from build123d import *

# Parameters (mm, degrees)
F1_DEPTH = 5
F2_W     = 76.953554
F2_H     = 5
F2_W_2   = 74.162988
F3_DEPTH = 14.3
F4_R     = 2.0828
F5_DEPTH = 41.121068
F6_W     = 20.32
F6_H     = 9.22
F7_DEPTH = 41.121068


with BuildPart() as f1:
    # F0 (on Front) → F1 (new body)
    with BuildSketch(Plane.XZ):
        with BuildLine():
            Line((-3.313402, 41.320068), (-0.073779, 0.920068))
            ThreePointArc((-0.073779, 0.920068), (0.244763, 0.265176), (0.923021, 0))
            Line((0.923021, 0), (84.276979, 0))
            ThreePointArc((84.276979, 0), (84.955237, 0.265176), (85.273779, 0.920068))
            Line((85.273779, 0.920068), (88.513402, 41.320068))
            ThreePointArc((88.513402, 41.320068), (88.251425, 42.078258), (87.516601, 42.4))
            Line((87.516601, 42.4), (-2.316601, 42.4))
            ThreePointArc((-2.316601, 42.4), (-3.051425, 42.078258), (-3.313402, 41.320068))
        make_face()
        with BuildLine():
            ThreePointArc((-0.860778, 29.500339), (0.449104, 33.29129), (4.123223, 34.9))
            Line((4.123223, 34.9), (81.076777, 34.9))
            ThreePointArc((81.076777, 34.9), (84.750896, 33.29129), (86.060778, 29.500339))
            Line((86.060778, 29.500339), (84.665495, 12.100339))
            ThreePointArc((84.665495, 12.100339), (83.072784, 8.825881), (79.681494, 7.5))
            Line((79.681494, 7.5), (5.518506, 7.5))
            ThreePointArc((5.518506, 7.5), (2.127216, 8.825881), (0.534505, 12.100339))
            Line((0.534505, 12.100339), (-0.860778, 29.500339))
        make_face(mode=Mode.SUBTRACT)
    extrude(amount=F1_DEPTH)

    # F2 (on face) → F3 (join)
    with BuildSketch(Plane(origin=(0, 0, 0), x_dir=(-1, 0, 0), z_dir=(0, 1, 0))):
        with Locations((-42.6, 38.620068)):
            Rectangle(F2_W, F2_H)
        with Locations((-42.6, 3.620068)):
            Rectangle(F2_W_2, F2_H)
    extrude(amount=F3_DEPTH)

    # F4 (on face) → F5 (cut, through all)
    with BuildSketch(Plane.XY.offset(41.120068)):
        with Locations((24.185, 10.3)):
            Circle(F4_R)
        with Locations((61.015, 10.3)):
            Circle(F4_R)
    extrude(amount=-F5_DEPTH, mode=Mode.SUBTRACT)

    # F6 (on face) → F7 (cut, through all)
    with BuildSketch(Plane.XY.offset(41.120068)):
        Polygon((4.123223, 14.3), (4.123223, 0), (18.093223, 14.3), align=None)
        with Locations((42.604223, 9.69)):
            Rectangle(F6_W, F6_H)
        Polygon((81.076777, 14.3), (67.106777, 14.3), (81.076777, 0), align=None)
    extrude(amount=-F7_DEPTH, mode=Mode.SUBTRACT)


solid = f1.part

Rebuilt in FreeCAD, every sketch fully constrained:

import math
import FreeCAD as App
import Part
import Sketcher
from FreeCAD import Vector
Q = App.Units.Quantity


def add_polygon(sketch, points):
    """Adds a closed chain of lines whose ends are joined by coincident constraints."""
    first, n = sketch.GeometryCount, len(points)
    for a, b in zip(points, points[1:] + points[:1]):
        sketch.addGeometry(Part.LineSegment(App.Vector(*a, 0), App.Vector(*b, 0)), False)
    for i in range(n):
        sketch.addConstraint(Sketcher.Constraint("Coincident", first + i, 2, first + (i + 1) % n, 1))

doc = App.newDocument("Part")
body = doc.addObject("PartDesign::Body", "Body")

# Sketch on XZ plane
sketch1 = body.newObject("Sketcher::SketchObject", "Sketch")
sketch1.AttachmentSupport = (doc.getObject("XZ_Plane"), [""])
sketch1.MapMode = "FlatFace"
sketch1.addGeometry([
    Part.LineSegment(Vector(-3.313402, 41.320068, 0), Vector(-0.073779, 0.920068, 0)),  # 0
    Part.ArcOfCircle(Part.Circle(Vector(0.92302, 0.999999, 0), Vector(0, 0, 1), 0.999999), math.radians(-175.415391), math.radians(-89.99997)),  # 1
    Part.LineSegment(Vector(0.923021, 0, 0), Vector(84.276979, 0, 0)),  # 2
    Part.ArcOfCircle(Part.Circle(Vector(84.27698, 0.999999, 0), Vector(0, 0, 1), 0.999999), math.radians(-90.00003), math.radians(-4.584609)),  # 3
    Part.LineSegment(Vector(85.273779, 0.920068, 0), Vector(88.513402, 41.320068, 0)),  # 4
    Part.ArcOfCircle(Part.Circle(Vector(87.516601, 41.399999, 0), Vector(0, 0, 1), 1.000001), math.radians(-4.584606), math.radians(89.999988)),  # 5
    Part.LineSegment(Vector(87.516601, 42.4, 0), Vector(-2.316601, 42.4, 0)),  # 6
    Part.ArcOfCircle(Part.Circle(Vector(-2.316601, 41.399999, 0), Vector(0, 0, 1), 1.000001), math.radians(90.000012), math.radians(184.584606)),  # 7
    Part.LineSegment(Vector(0.534505, 12.100339, 0), Vector(-0.860778, 29.500339, 0)),  # 8
    Part.ArcOfCircle(Part.Circle(Vector(4.123223, 29.9, 0), Vector(0, 0, 1), 5), math.radians(90), math.radians(184.584674)),  # 9
    Part.LineSegment(Vector(4.123223, 34.9, 0), Vector(81.076777, 34.9, 0)),  # 10
    Part.ArcOfCircle(Part.Circle(Vector(81.076777, 29.9, 0), Vector(0, 0, 1), 5), math.radians(-4.584674), math.radians(90)),  # 11
    Part.LineSegment(Vector(86.060778, 29.500339, 0), Vector(84.665495, 12.100339, 0)),  # 12
    Part.ArcOfCircle(Part.Circle(Vector(79.681494, 12.5, 0), Vector(0, 0, 1), 5), math.radians(-89.999999), math.radians(-4.584663)),  # 13
    Part.LineSegment(Vector(79.681494, 7.5, 0), Vector(5.518506, 7.5, 0)),  # 14
    Part.ArcOfCircle(Part.Circle(Vector(5.518506, 12.5, 0), Vector(0, 0, 1), 5), math.radians(-175.415337), math.radians(-90.000001)),  # 15
], False)
sketch1.addConstraint([
    Sketcher.Constraint("Coincident", 0, 2, 1, 1),
    Sketcher.Constraint("Coincident", 1, 2, 2, 1),
    Sketcher.Constraint("Coincident", 2, 2, 3, 1),
    Sketcher.Constraint("Coincident", 3, 2, 4, 1),
    Sketcher.Constraint("Coincident", 4, 2, 5, 1),
    Sketcher.Constraint("Coincident", 5, 2, 6, 1),
    Sketcher.Constraint("Coincident", 6, 2, 7, 1),
    Sketcher.Constraint("Coincident", 7, 2, 0, 1),
    Sketcher.Constraint("Coincident", 8, 2, 9, 2),
    Sketcher.Constraint("Coincident", 9, 1, 10, 1),
    Sketcher.Constraint("Coincident", 10, 2, 11, 2),
    Sketcher.Constraint("Coincident", 11, 1, 12, 1),
    Sketcher.Constraint("Coincident", 12, 2, 13, 2),
    Sketcher.Constraint("Coincident", 13, 1, 14, 1),
    Sketcher.Constraint("Coincident", 14, 2, 15, 2),
    Sketcher.Constraint("Coincident", 15, 1, 8, 1),
    Sketcher.Constraint("Horizontal", 2),
    Sketcher.Constraint("Horizontal", 6),
    Sketcher.Constraint("Horizontal", 10),
    Sketcher.Constraint("Horizontal", 14),
    Sketcher.Constraint("PointOnObject", 1, 2, -1),
    Sketcher.Constraint("Radius", 1, Q("0.999999 mm")),
    Sketcher.Constraint("Radius", 3, Q("0.999999 mm")),
    Sketcher.Constraint("Radius", 5, Q("1.000001 mm")),
    Sketcher.Constraint("Radius", 7, Q("1.000001 mm")),
    Sketcher.Constraint("Radius", 9, Q("5 mm")),
    Sketcher.Constraint("Radius", 11, Q("5 mm")),
    Sketcher.Constraint("Radius", 13, Q("5 mm")),
    Sketcher.Constraint("Radius", 15, Q("5 mm")),
    Sketcher.Constraint("DistanceY", -1, 1, 5, 3, Q("41.399999 mm")),
    Sketcher.Constraint("DistanceY", -1, 1, 9, 3, Q("29.9 mm")),
    Sketcher.Constraint("DistanceY", -1, 1, 13, 3, Q("12.5 mm")),
    Sketcher.Constraint("DistanceY", 3, 2, 4, 2, Q("40.4 mm")),
    Sketcher.Constraint("DistanceY", 0, 2, 7, 2, Q("40.4 mm")),
    Sketcher.Constraint("DistanceY", 12, 2, 11, 1, Q("17.4 mm")),
    Sketcher.Constraint("DistanceX", 6, 2, 6, 1, Q("89.833202 mm")),
    Sketcher.Constraint("DistanceX", 8, 2, 9, 3, Q("4.984001 mm")),
    Sketcher.Constraint("DistanceX", 8, 2, 9, 1, Q("4.984001 mm")),
    Sketcher.Constraint("DistanceX", 11, 3, 11, 1, Q("4.984001 mm")),
    Sketcher.Constraint("DistanceX", 10, 2, 11, 1, Q("4.984001 mm")),
    Sketcher.Constraint("DistanceX", 13, 1, 12, 2, Q("4.984001 mm")),
    Sketcher.Constraint("DistanceX", 15, 1, 15, 3, Q("4.984001 mm")),
    Sketcher.Constraint("DistanceX", 15, 1, 14, 2, Q("4.984001 mm")),
    Sketcher.Constraint("DistanceX", 14, 2, 14, 1, Q("74.162988 mm")),
    Sketcher.Constraint("DistanceX", -1, 1, 5, 3, Q("87.516601 mm")),
    Sketcher.Constraint("DistanceX", 7, 3, -1, 1, Q("2.316601 mm")),
    Sketcher.Constraint("DistanceX", -1, 1, 4, 2, Q("88.513402 mm")),
    Sketcher.Constraint("DistanceX", -1, 1, 5, 2, Q("87.516601 mm")),
    Sketcher.Constraint("DistanceX", 7, 2, -1, 1, Q("3.313402 mm")),
    Sketcher.Constraint("DistanceX", 0, 2, 1, 2, Q("0.9968 mm")),
    Sketcher.Constraint("DistanceX", 2, 2, 3, 2, Q("0.9968 mm")),
    Sketcher.Constraint("DistanceX", 2, 1, 2, 2, Q("83.353958 mm")),
    Sketcher.Constraint("DistanceX", 10, 1, 10, 2, Q("76.953554 mm")),
    Sketcher.Constraint("DistanceX", -1, 1, 1, 3, Q("0.92302 mm")),
    Sketcher.Constraint("DistanceX", 8, 2, -1, 1, Q("0.860778 mm")),
    Sketcher.Constraint("DistanceX", 9, 3, 13, 3, Q("75.558271 mm")),
])
pad1 = body.newObject("PartDesign::Pad", "Pad")
pad1.Profile = sketch1
pad1.Length = 5

# Sketch on XZ plane
sketch2 = body.newObject("Sketcher::SketchObject", "Sketch001")
sketch2.AttachmentSupport = (doc.getObject("XZ_Plane"), [""])
sketch2.MapMode = "FlatFace"
add_polygon(sketch2, [(81, 41), (81, 36), (4, 36), (4, 41)])  # lines 0-3
add_polygon(sketch2, [(80, 6), (80, 1), (6, 1), (6, 6)])  # lines 4-7
sketch2.addConstraint([
    Sketcher.Constraint("Vertical", 0),
    Sketcher.Constraint("Horizontal", 1),
    Sketcher.Constraint("Vertical", 2),
    Sketcher.Constraint("Horizontal", 3),
    Sketcher.Constraint("Vertical", 4),
    Sketcher.Constraint("Horizontal", 5),
    Sketcher.Constraint("Vertical", 6),
    Sketcher.Constraint("Horizontal", 7),
    Sketcher.Constraint("Equal", 2, 4),
    Sketcher.Constraint("DistanceY", 0, 2, 0, 1, Q("5 mm")),
    Sketcher.Constraint("DistanceY", 4, 2, 0, 2, Q("35 mm")),
    Sketcher.Constraint("DistanceX", 5, 2, 5, 1, Q("74.162988 mm")),
    Sketcher.Constraint("DistanceX", 1, 2, 1, 1, Q("76.953554 mm")),
    Sketcher.Constraint("DistanceY", -1, 1, 0, 2, Q("36.120068 mm")),
    Sketcher.Constraint("DistanceX", 1, 2, 4, 2, Q("75.558271 mm")),
    Sketcher.Constraint("DistanceX", -1, 1, 0, 2, Q("81.076777 mm")),
])
pad2 = body.newObject("PartDesign::Pad", "Pad001")
pad2.Profile = sketch2
pad2.Length = 14.3
pad2.Reversed = True

# Sketch on XY plane
sketch3 = body.newObject("Sketcher::SketchObject", "Sketch002")
sketch3.AttachmentSupport = (doc.getObject("XY_Plane"), [""])
sketch3.MapMode = "FlatFace"
sketch3.AttachmentOffset = App.Placement(Vector(0, 0, 41.120068), App.Rotation())
sketch3.addGeometry([
    Part.Circle(Vector(24.2, 10.3, 0), Vector(0, 0, 1), 2.1),
    Part.Circle(Vector(61, 10.3, 0), Vector(0, 0, 1), 2.1),
], False)
sketch3.addConstraint([
    Sketcher.Constraint("Equal", 0, 1),
    Sketcher.Constraint("Horizontal", 0, 3, 1, 3),
    Sketcher.Constraint("Diameter", 0, Q("4.1656 mm")),
    Sketcher.Constraint("DistanceY", -1, 1, 0, 3, Q("10.3 mm")),
    Sketcher.Constraint("DistanceX", 0, 3, 1, 3, Q("36.83 mm")),
    Sketcher.Constraint("DistanceX", -1, 1, 0, 3, Q("24.185 mm")),
])
pocket1 = body.newObject("PartDesign::Pocket", "Pocket")
pocket1.Profile = sketch3
pocket1.Type = "ThroughAll"

# Sketch on XY plane
sketch4 = body.newObject("Sketcher::SketchObject", "Sketch003")
sketch4.AttachmentSupport = (doc.getObject("XY_Plane"), [""])
sketch4.MapMode = "FlatFace"
sketch4.AttachmentOffset = App.Placement(Vector(0, 0, 41.120068), App.Rotation())
add_polygon(sketch4, [(4, 14), (4, 0), (18, 14)])  # lines 0-2
add_polygon(sketch4, [(32, 14), (32, 5), (53, 5), (53, 14)])  # lines 3-6
add_polygon(sketch4, [(81, 14), (67, 14), (81, 0)])  # lines 7-9
sketch4.addConstraint([
    Sketcher.Constraint("Vertical", 0),
    Sketcher.Constraint("Horizontal", 2),
    Sketcher.Constraint("Vertical", 3),
    Sketcher.Constraint("Horizontal", 4),
    Sketcher.Constraint("Vertical", 5),
    Sketcher.Constraint("Horizontal", 6),
    Sketcher.Constraint("Horizontal", 7),
    Sketcher.Constraint("Vertical", 9),
    Sketcher.Constraint("PointOnObject", 0, 2, -1),
    Sketcher.Constraint("PointOnObject", 8, 2, -1),
    Sketcher.Constraint("Horizontal", 2, 2, 5, 2),
    Sketcher.Constraint("Horizontal", 6, 2, 7, 2),
    Sketcher.Constraint("Equal", 2, 7),
    Sketcher.Constraint("DistanceY", 0, 2, 0, 1, Q("14.3 mm")),
    Sketcher.Constraint("DistanceX", 2, 2, 2, 1, Q("13.97 mm")),
    Sketcher.Constraint("DistanceX", 4, 1, 4, 2, Q("20.32 mm")),
    Sketcher.Constraint("DistanceY", 3, 2, 3, 1, Q("9.22 mm")),
    Sketcher.Constraint("DistanceX", 1, 2, 3, 2, Q("14.351 mm")),
    Sketcher.Constraint("DistanceX", -1, 1, 0, 2, Q("4.123223 mm")),
    Sketcher.Constraint("DistanceX", -1, 1, 7, 2, Q("67.106777 mm")),
])
pocket2 = body.newObject("PartDesign::Pocket", "Pocket001")
pocket2.Profile = sketch4
pocket2.Type = "ThroughAll"

doc.recompute()
